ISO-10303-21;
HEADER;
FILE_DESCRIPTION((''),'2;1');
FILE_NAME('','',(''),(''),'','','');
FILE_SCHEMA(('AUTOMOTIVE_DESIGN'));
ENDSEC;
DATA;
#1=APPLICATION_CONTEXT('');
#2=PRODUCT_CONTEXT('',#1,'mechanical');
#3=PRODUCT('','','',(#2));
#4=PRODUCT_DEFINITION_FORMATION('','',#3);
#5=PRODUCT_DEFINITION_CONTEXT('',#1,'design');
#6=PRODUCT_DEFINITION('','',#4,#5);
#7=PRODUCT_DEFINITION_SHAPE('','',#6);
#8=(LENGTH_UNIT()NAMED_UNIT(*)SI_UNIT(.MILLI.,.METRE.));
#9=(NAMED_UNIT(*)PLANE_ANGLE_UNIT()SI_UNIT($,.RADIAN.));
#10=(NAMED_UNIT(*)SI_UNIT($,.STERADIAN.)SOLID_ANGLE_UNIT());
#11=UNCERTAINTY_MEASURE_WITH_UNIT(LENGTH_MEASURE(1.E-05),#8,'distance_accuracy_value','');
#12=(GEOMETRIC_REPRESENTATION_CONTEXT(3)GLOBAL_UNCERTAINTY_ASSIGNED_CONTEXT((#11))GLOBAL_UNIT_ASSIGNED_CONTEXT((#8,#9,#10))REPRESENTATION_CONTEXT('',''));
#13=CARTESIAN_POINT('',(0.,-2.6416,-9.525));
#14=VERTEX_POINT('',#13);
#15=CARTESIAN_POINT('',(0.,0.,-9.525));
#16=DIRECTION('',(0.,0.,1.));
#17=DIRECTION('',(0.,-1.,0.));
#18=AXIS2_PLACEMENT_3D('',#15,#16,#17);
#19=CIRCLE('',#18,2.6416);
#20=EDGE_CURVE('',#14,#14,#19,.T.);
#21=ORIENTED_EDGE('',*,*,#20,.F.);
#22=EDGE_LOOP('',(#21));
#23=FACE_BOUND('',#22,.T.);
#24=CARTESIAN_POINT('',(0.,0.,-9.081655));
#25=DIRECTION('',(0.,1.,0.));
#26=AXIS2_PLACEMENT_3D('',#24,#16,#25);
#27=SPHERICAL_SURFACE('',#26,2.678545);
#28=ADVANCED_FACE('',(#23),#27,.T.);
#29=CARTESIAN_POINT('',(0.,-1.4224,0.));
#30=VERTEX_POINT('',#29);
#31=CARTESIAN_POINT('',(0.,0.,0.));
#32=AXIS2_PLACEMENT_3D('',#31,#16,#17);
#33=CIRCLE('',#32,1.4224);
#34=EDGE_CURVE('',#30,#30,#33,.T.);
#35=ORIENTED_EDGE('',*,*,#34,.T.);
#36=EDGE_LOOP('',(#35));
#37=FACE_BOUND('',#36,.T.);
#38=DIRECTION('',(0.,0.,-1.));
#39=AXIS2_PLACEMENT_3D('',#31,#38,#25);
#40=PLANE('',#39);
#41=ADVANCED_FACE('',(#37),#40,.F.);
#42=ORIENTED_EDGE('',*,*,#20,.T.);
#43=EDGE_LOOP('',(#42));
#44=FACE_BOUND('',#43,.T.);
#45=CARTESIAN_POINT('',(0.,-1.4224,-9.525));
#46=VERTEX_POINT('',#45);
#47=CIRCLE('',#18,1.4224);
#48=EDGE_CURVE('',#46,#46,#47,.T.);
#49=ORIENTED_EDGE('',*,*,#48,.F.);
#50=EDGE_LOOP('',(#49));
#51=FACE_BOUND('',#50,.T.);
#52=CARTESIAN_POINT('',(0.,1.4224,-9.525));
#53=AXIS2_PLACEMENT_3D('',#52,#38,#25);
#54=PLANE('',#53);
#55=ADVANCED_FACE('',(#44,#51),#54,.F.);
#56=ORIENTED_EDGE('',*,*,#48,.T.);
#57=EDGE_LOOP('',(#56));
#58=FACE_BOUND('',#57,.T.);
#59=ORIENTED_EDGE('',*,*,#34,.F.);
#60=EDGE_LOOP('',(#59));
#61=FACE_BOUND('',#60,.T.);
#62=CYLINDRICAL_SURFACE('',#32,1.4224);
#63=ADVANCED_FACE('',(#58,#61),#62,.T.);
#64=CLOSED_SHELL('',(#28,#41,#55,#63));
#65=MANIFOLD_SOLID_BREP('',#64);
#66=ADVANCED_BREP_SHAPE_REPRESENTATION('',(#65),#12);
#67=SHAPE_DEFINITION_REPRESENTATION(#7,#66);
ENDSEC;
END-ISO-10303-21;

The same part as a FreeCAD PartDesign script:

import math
import FreeCAD as App
import Part
import Sketcher
Q = App.Units.Quantity

doc = App.newDocument("Part")
body = doc.addObject("PartDesign::Body", "Body")

sketch1 = body.newObject("Sketcher::SketchObject", "Sketch")
sketch1.AttachmentSupport = (doc.getObject("YZ_Plane"), [""])
sketch1.MapMode = "FlatFace"
sketch1.addGeometry([
    Part.LineSegment(App.Vector(1.4, 0, 0), App.Vector(0, 0, 0)),
    Part.LineSegment(App.Vector(0, 0, 0), App.Vector(0, -11.8, 0)),
    Part.ArcOfCircle(Part.Circle(App.Vector(0, -9.1, 0), App.Vector(0, 0, 1), 2.7), math.radians(-90), math.radians(-10)),
    Part.LineSegment(App.Vector(2.6, -9.5, 0), App.Vector(1.4, -9.5, 0)),
    Part.LineSegment(App.Vector(1.4, -9.5, 0), App.Vector(1.4, 0, 0)),
], False)
sketch1.addConstraint([
    Sketcher.Constraint("Coincident", 0, 2, 1, 1),
    Sketcher.Constraint("Coincident", 1, 2, 2, 1),
    Sketcher.Constraint("Coincident", 2, 2, 3, 1),
    Sketcher.Constraint("Coincident", 3, 2, 4, 1),
    Sketcher.Constraint("Coincident", 4, 2, 0, 1),
    Sketcher.Constraint("Horizontal", 0),
    Sketcher.Constraint("Vertical", 1),
    Sketcher.Constraint("Horizontal", 3),
    Sketcher.Constraint("Vertical", 4),
    Sketcher.Constraint("Coincident", 0, 2, -1, 1),
    Sketcher.Constraint("PointOnObject", 2, 3, -2),
    Sketcher.Constraint("DistanceX", 0, 2, 0, 1, Q("0.056 in")),
    Sketcher.Constraint("DistanceX", 3, 2, 3, 1, Q("0.048 in")),
    Sketcher.Constraint("DistanceY", 1, 2, 1, 1, Q("0.463 in")),
    Sketcher.Constraint("DistanceY", 4, 1, 4, 2, Q("0.375 in")),
])
revolution = body.newObject("PartDesign::Revolution", "Revolution")
revolution.Profile = sketch1
revolution.ReferenceAxis = (sketch1, ["V_Axis"])
revolution.Angle = 360

doc.recompute()
